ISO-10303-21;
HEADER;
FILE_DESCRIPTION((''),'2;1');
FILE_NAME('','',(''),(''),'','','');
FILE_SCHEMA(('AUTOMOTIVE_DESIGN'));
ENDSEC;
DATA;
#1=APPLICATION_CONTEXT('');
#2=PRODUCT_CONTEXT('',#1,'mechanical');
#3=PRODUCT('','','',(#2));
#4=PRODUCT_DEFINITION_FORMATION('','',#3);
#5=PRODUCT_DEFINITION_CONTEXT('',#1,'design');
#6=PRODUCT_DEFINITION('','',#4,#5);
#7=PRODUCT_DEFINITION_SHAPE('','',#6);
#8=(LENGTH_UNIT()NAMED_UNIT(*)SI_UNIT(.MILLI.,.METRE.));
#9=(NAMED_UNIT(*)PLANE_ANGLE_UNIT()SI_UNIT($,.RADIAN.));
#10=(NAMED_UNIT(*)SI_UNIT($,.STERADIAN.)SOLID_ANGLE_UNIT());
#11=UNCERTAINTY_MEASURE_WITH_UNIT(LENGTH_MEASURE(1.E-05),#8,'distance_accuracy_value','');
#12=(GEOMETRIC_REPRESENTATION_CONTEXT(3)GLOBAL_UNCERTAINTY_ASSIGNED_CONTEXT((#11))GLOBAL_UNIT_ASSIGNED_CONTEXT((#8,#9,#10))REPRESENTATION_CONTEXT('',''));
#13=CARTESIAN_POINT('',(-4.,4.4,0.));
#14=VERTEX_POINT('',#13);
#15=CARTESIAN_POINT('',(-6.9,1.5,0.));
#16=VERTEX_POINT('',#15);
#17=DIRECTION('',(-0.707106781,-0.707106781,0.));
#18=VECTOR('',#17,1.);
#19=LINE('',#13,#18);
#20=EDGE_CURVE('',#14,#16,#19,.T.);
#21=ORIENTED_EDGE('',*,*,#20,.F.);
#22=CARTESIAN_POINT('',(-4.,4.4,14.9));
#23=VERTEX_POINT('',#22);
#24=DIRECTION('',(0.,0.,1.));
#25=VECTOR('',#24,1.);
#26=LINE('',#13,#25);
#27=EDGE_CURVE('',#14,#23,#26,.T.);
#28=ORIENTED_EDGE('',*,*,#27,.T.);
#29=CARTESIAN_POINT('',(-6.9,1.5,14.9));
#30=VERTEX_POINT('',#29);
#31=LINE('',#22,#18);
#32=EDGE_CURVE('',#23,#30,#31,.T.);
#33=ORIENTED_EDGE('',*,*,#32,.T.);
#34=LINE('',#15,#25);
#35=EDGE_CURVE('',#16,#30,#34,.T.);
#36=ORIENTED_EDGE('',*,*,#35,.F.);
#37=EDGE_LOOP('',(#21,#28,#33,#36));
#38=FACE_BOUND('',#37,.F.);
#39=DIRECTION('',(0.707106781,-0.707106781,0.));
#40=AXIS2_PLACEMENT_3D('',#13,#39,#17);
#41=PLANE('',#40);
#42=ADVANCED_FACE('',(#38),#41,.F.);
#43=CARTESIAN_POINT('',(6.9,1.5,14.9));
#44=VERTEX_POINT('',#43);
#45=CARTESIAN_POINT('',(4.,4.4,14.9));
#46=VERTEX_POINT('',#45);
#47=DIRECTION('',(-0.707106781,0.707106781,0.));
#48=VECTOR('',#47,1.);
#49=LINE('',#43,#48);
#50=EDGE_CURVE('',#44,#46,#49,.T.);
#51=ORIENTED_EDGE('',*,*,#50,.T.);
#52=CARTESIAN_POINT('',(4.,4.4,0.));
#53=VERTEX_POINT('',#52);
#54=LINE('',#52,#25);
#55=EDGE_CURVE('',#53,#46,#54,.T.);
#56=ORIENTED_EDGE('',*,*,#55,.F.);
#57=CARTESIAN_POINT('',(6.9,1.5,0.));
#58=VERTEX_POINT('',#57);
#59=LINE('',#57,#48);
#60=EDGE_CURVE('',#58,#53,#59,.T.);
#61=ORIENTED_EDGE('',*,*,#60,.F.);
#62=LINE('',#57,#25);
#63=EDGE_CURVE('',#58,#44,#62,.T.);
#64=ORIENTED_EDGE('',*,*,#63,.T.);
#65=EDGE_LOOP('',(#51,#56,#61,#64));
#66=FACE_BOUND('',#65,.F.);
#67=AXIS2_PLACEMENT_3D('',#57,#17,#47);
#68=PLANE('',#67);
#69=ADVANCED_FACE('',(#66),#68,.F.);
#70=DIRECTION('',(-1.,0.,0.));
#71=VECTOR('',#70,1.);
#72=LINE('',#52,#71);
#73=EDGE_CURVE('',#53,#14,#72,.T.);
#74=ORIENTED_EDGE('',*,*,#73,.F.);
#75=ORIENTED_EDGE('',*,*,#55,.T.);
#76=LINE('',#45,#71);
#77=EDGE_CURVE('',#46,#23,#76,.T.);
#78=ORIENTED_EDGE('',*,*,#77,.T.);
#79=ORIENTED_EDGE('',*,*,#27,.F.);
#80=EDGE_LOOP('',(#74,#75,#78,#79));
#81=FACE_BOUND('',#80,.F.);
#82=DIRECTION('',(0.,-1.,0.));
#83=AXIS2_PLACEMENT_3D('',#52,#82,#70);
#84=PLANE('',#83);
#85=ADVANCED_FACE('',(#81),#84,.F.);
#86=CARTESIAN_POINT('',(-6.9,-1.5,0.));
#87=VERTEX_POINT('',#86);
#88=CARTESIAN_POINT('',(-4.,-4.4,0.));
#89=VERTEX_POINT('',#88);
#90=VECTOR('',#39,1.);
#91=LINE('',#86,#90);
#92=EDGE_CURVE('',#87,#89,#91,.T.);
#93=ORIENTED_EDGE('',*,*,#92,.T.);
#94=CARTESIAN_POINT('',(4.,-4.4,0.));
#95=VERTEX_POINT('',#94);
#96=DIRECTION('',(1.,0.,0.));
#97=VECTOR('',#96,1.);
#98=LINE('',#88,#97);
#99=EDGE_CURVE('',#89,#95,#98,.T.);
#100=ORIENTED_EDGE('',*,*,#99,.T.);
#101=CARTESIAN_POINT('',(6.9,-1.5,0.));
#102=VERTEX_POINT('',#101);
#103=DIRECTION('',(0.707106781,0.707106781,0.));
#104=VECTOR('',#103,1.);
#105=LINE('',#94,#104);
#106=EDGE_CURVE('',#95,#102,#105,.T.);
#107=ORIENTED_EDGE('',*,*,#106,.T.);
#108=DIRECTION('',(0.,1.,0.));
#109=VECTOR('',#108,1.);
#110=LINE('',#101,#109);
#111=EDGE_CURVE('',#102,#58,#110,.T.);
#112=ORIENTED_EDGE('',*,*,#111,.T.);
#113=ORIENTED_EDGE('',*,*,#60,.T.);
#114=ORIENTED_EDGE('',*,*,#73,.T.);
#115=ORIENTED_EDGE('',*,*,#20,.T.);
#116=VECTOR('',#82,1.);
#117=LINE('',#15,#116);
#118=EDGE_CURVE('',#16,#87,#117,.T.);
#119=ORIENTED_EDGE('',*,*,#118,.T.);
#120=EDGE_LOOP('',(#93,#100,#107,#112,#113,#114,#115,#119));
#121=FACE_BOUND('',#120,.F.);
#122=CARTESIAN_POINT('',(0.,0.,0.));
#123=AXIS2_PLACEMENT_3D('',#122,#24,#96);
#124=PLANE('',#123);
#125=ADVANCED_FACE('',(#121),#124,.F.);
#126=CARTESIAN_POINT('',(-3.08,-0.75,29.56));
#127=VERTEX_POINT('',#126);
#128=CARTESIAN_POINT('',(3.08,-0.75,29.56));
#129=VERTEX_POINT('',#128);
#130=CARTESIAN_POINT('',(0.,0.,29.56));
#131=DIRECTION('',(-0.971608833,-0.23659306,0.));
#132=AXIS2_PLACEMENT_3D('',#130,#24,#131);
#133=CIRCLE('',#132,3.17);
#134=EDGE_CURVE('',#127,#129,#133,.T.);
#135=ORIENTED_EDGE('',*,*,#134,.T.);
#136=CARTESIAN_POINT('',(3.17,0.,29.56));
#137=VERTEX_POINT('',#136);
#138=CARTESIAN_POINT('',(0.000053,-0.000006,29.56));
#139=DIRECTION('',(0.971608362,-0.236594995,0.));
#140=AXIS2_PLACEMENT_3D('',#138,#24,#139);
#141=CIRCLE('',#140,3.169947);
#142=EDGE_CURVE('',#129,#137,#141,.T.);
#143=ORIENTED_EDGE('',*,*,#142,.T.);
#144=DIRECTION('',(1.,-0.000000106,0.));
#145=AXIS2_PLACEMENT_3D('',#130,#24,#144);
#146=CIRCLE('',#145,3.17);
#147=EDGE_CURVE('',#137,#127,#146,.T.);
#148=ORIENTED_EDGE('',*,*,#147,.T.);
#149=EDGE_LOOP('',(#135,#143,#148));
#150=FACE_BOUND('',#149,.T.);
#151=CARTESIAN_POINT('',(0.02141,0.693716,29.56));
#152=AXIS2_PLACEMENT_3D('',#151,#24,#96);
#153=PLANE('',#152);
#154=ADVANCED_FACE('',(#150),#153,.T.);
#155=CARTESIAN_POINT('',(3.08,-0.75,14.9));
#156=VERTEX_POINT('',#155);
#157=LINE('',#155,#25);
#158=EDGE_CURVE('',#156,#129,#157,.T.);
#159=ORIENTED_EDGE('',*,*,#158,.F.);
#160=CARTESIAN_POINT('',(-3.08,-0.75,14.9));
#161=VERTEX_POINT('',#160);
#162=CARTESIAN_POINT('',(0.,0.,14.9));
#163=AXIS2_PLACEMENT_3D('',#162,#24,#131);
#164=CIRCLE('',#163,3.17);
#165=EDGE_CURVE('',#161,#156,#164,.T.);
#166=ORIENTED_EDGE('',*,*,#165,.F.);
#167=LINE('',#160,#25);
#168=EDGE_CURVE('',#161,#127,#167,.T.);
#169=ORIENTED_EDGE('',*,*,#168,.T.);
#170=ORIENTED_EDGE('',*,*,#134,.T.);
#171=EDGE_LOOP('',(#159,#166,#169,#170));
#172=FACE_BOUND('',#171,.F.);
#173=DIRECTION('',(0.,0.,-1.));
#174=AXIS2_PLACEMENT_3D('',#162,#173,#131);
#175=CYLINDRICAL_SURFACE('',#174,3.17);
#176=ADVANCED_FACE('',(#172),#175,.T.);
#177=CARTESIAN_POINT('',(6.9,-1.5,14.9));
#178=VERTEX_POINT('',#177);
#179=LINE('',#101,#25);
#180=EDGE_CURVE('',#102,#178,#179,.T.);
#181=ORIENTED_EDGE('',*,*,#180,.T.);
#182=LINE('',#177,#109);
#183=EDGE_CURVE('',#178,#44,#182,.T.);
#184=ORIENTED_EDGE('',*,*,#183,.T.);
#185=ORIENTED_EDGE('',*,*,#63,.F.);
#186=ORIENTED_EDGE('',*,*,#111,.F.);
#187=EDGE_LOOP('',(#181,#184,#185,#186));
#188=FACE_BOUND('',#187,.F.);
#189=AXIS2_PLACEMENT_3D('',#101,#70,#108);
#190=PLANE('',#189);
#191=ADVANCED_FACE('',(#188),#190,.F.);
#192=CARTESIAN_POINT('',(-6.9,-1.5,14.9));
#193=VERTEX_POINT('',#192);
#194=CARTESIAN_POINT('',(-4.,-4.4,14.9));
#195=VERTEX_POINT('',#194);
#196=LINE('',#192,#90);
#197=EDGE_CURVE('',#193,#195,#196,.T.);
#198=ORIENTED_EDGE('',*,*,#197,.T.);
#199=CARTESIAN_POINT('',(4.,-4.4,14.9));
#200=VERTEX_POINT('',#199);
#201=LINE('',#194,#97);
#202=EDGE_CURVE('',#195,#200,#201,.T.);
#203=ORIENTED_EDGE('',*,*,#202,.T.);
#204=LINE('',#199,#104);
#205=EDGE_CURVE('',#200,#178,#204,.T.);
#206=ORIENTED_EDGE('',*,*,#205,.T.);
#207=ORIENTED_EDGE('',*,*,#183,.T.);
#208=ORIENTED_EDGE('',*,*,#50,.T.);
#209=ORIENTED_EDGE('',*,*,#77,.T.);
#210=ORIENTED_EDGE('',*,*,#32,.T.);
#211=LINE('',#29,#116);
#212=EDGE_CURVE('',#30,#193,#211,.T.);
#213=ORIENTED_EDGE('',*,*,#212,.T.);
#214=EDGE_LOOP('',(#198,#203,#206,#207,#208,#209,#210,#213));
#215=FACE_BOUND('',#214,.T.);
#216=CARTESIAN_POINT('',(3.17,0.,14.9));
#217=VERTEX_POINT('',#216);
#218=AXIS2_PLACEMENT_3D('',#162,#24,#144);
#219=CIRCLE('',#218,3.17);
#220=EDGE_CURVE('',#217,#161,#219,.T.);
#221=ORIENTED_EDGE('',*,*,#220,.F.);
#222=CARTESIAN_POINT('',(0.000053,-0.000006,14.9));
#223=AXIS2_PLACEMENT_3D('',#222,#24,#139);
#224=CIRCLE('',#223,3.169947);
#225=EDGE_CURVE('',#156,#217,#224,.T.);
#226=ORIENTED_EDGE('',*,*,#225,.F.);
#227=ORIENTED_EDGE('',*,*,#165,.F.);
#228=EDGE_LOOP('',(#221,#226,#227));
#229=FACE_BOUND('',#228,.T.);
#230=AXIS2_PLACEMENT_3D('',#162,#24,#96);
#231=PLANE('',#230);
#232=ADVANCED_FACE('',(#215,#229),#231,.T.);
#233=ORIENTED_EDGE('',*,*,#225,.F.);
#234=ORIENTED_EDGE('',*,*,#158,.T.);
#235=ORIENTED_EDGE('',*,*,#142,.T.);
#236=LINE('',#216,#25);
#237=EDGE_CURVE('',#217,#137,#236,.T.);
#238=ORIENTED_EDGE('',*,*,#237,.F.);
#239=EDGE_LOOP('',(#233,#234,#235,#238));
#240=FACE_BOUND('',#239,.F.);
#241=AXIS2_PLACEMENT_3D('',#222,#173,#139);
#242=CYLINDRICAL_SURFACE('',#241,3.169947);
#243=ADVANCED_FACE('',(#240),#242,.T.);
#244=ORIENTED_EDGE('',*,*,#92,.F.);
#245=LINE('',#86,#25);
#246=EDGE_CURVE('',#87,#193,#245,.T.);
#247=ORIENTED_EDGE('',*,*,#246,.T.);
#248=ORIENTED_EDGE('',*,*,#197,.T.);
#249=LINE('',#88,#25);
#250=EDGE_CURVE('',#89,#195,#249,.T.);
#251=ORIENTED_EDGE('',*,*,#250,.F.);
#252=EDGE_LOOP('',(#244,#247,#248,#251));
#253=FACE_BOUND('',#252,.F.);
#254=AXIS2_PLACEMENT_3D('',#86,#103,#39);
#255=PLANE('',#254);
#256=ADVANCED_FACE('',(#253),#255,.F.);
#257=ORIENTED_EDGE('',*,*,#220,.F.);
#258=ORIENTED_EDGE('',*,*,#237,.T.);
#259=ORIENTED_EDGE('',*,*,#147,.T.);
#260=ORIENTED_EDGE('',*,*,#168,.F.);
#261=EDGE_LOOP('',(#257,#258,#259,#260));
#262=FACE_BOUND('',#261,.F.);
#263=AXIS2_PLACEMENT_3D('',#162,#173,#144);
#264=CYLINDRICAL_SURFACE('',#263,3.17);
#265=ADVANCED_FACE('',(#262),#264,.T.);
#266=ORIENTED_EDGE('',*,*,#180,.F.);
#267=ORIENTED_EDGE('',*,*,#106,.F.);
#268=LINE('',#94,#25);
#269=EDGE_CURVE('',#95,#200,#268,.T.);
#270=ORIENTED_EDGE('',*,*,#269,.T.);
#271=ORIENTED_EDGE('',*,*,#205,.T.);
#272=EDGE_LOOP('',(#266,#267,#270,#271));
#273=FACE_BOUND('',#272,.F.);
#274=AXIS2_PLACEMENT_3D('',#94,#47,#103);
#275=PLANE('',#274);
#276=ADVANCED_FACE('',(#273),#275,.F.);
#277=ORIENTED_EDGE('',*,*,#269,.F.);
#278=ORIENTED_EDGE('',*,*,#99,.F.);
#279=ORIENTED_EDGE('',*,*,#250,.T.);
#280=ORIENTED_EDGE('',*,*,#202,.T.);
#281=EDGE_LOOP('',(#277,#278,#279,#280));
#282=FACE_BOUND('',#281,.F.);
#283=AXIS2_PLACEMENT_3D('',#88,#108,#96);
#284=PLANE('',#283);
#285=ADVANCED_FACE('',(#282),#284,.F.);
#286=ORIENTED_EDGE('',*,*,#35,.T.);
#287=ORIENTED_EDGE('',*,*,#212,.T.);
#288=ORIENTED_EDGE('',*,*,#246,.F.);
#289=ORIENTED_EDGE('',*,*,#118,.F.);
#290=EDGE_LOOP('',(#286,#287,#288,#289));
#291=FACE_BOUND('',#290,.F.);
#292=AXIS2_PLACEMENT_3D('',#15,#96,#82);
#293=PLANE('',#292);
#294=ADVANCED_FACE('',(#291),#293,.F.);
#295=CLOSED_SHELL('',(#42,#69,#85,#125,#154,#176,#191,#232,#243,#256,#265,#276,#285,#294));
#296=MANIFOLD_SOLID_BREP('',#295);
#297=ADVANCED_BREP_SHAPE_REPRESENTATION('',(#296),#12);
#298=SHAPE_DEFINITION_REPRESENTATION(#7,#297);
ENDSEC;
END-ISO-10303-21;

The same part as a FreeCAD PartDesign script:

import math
import FreeCAD as App
import Part
import Sketcher

doc = App.newDocument("Part")
body = doc.addObject("PartDesign::Body", "Body")

sketch1 = body.newObject("Sketcher::SketchObject", "Sketch")
sketch1.AttachmentSupport = (doc.getObject("XY_Plane"), [""])
sketch1.MapMode = "FlatFace"
sketch1.addGeometry(Part.LineSegment(App.Vector(-4, -4.4, 0), App.Vector(4, -4.4, 0)), False)
sketch1.addGeometry(Part.LineSegment(App.Vector(4, -4.4, 0), App.Vector(6.9, -1.5, 0)), False)
sketch1.addGeometry(Part.LineSegment(App.Vector(6.9, -1.5, 0), App.Vector(6.9, 1.5, 0)), False)
sketch1.addGeometry(Part.LineSegment(App.Vector(6.9, 1.5, 0), App.Vector(4, 4.4, 0)), False)
sketch1.addGeometry(Part.LineSegment(App.Vector(4, 4.4, 0), App.Vector(-4, 4.4, 0)), False)
sketch1.addGeometry(Part.LineSegment(App.Vector(-4, 4.4, 0), App.Vector(-6.9, 1.5, 0)), False)
sketch1.addGeometry(Part.LineSegment(App.Vector(-6.9, 1.5, 0), App.Vector(-6.9, -1.5, 0)), False)
sketch1.addGeometry(Part.LineSegment(App.Vector(-6.9, -1.5, 0), App.Vector(-4, -4.4, 0)), False)
sketch1.addConstraint(Sketcher.Constraint("Coincident", 0, 2, 1, 1))
sketch1.addConstraint(Sketcher.Constraint("Coincident", 1, 2, 2, 1))
sketch1.addConstraint(Sketcher.Constraint("Coincident", 2, 2, 3, 1))
sketch1.addConstraint(Sketcher.Constraint("Coincident", 3, 2, 4, 1))
sketch1.addConstraint(Sketcher.Constraint("Coincident", 4, 2, 5, 1))
sketch1.addConstraint(Sketcher.Constraint("Coincident", 5, 2, 6, 1))
sketch1.addConstraint(Sketcher.Constraint("Coincident", 6, 2, 7, 1))
sketch1.addConstraint(Sketcher.Constraint("Coincident", 7, 2, 0, 1))
sketch1.addConstraint(Sketcher.Constraint("Horizontal", 0))
sketch1.addConstraint(Sketcher.Constraint("Vertical", 2))
sketch1.addConstraint(Sketcher.Constraint("Horizontal", 4))
sketch1.addConstraint(Sketcher.Constraint("Vertical", 6))
sketch1.addConstraint(Sketcher.Constraint("Symmetric", 0, 2, 4, 2, -1, 1))
sketch1.addConstraint(Sketcher.Constraint("Symmetric", 1, 2, 5, 2, -1, 1))
sketch1.addConstraint(Sketcher.Constraint("Perpendicular", 1, 3))
sketch1.addConstraint(Sketcher.Constraint("Perpendicular", 5, 7))
sketch1.addConstraint(Sketcher.Constraint("Horizontal", 2, 2, 5, 2))
sketch1.addConstraint(Sketcher.Constraint("Horizontal", 1, 2, 6, 2))
sketch1.addConstraint(Sketcher.Constraint("Vertical", 0, 2, 3, 2))
sketch1.addConstraint(Sketcher.Constraint("DistanceX", 0, 1, 0, 2, 8.0))
sketch1.addConstraint(Sketcher.Constraint("DistanceY", 2, 1, 2, 2, 3.0))
sketch1.addConstraint(Sketcher.Constraint("DistanceY", 0, 2, -1, 1, 4.4))
pad1 = body.newObject("PartDesign::Pad", "Pad")
pad1.Profile = sketch1
pad1.Length = 14.9

sketch2 = body.newObject("Sketcher::SketchObject", "Sketch001")
sketch2.AttachmentSupport = (doc.getObject("XY_Plane"), [""])
sketch2.MapMode = "FlatFace"
sketch2.AttachmentOffset = App.Placement(App.Vector(0, 0, 14.9), App.Rotation())
sketch2.addGeometry(Part.ArcOfCircle(Part.Circle(App.Vector(0.000053, -0.000006, 0), App.Vector(0, 0, 1), 3.169947), math.radians(-13.685661), math.radians(0.000114)), False)
sketch2.addGeometry(Part.ArcOfCircle(Part.Circle(App.Vector(0, 0, 0), App.Vector(0, 0, 1), 3.17), math.radians(-0.000006), math.radians(193.685553)), False)
sketch2.addGeometry(Part.ArcOfCircle(Part.Circle(App.Vector(0, 0, 0), App.Vector(0, 0, 1), 3.17), math.radians(-166.314453), math.radians(-13.685547)), False)
sketch2.addConstraint(Sketcher.Constraint("Coincident", 0, 2, 1, 1))
sketch2.addConstraint(Sketcher.Constraint("Coincident", 1, 2, 2, 1))
sketch2.addConstraint(Sketcher.Constraint("Coincident", 2, 2, 0, 1))
sketch2.addConstraint(Sketcher.Constraint("Coincident", 1, 3, -1, 1))
sketch2.addConstraint(Sketcher.Constraint("Coincident", 2, 3, -1, 1))
sketch2.addConstraint(Sketcher.Constraint("PointOnObject", 0, 2, -1))
sketch2.addConstraint(Sketcher.Constraint("Radius", 1, 3.17))
sketch2.addConstraint(Sketcher.Constraint("DistanceX", 1, 2, -1, 1, 3.08))
sketch2.addConstraint(Sketcher.Constraint("DistanceX", -1, 1, 2, 2, 3.08))
sketch2.addConstraint(Sketcher.Constraint("Radius", 0, 3.169947))
pad2 = body.newObject("PartDesign::Pad", "Pad001")
pad2.Profile = sketch2
pad2.Length = 14.66

doc.recompute()
